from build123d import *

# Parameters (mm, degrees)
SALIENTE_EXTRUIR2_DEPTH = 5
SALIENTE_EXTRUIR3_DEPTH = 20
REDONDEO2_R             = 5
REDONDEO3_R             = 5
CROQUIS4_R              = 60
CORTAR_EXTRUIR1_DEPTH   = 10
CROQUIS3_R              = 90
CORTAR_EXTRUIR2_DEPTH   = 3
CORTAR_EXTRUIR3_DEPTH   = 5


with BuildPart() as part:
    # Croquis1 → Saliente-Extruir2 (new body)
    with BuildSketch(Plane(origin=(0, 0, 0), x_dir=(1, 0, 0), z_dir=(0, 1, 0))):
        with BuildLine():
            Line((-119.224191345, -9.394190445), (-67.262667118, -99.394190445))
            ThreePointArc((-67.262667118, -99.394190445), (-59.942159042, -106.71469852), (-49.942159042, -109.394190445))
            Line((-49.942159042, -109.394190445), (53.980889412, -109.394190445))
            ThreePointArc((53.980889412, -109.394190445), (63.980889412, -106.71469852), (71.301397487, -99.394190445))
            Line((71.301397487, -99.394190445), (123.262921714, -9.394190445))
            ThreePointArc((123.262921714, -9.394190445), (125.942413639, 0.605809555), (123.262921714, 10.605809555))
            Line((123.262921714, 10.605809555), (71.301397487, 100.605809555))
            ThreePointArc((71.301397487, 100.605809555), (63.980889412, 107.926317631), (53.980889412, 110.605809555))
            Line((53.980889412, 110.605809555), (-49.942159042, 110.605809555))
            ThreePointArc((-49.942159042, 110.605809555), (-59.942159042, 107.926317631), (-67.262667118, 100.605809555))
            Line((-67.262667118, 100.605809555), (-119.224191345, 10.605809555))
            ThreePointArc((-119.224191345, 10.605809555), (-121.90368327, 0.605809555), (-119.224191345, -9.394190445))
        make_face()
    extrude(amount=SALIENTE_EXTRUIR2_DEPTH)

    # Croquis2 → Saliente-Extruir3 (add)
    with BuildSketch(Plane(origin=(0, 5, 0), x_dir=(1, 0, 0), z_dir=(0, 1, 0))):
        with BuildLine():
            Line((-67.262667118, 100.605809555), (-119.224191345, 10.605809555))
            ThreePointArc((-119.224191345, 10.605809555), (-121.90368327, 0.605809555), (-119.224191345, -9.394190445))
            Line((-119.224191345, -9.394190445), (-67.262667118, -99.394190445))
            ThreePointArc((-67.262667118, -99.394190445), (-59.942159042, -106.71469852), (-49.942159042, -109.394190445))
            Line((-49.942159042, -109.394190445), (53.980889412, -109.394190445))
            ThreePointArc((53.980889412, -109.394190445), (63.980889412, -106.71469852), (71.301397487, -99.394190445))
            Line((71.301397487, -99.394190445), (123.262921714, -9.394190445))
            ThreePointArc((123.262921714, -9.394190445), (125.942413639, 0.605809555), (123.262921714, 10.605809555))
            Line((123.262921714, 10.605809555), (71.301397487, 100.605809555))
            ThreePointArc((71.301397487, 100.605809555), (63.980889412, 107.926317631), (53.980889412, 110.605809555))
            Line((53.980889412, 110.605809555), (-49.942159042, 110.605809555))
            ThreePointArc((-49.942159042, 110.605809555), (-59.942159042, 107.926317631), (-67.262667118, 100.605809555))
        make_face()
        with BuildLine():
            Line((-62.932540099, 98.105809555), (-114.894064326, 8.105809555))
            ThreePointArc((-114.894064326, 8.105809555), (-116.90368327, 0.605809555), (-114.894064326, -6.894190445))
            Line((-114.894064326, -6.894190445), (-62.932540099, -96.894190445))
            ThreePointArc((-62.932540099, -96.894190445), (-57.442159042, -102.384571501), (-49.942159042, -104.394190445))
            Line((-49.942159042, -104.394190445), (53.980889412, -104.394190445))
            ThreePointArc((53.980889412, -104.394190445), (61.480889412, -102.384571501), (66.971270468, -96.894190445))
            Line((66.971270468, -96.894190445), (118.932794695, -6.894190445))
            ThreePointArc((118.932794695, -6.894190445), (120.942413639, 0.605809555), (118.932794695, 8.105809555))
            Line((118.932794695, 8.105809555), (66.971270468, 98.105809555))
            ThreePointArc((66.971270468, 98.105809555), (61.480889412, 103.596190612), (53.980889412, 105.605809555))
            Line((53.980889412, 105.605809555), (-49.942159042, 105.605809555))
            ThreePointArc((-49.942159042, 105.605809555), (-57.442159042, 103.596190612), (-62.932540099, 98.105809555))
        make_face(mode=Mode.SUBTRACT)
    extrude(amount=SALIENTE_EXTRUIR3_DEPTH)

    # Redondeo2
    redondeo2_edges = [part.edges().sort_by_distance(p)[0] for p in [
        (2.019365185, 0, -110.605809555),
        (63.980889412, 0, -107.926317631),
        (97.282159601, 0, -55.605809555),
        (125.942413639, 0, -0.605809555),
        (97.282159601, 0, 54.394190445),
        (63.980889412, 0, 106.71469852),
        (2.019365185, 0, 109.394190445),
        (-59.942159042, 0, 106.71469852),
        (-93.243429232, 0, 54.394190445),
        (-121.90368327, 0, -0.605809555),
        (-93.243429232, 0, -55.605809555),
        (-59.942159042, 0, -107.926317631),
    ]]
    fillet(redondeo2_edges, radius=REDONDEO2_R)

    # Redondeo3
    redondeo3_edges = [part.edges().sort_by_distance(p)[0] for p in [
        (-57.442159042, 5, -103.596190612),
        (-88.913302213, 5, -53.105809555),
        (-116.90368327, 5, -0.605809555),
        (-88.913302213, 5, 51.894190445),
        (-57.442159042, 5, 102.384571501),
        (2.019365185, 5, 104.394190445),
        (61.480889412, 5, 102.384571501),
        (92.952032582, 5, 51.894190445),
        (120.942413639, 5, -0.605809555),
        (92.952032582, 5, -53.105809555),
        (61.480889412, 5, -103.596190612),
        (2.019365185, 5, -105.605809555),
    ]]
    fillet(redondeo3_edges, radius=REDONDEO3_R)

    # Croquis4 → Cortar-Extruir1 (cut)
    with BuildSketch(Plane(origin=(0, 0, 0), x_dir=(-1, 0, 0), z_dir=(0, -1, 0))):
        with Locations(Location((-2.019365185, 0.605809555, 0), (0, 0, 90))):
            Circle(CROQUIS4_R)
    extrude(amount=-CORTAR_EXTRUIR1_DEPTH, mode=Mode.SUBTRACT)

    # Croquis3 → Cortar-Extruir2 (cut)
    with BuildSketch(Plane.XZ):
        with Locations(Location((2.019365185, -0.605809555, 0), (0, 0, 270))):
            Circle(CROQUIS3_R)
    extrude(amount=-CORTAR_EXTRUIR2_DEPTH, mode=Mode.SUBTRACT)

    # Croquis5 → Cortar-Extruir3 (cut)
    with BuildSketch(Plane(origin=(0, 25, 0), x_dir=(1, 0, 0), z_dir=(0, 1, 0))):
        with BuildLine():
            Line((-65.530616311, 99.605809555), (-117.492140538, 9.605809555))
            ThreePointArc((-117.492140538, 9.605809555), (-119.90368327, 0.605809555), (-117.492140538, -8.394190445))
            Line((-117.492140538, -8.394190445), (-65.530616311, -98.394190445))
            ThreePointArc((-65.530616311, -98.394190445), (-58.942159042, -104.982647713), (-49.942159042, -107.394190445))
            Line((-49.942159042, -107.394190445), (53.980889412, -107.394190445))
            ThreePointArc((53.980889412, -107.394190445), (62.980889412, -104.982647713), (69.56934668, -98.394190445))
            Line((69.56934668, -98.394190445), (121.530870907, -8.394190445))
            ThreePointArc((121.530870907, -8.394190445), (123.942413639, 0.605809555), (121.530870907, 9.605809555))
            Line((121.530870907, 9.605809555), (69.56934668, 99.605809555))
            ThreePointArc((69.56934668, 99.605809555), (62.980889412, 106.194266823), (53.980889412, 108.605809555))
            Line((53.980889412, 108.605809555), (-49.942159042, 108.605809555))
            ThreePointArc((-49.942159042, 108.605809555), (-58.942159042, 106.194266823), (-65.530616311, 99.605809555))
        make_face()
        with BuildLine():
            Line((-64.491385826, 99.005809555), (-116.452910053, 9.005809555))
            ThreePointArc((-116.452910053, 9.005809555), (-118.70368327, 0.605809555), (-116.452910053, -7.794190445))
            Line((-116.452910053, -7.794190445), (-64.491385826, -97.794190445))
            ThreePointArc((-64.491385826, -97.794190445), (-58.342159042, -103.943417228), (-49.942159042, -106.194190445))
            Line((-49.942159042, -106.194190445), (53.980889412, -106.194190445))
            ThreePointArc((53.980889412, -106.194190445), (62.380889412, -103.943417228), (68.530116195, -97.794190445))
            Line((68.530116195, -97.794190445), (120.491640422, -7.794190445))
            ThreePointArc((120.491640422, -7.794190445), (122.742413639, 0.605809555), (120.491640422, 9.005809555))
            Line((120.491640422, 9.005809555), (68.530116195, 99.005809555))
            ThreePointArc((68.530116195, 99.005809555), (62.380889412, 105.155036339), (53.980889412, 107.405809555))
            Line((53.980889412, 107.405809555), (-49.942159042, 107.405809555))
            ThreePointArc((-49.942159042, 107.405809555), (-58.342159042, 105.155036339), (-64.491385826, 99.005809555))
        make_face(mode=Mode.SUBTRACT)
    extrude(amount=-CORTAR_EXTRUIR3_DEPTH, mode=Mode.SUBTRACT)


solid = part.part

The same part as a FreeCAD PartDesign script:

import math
import FreeCAD as App
import Part
import Sketcher
Q = App.Units.Quantity


def edges_at(feature, points):
    """Names of the edges that pass closest to the given points."""
    edges = feature.Shape.Edges
    near = lambda p: min(range(len(edges)), key=lambda i: edges[i].distToShape(Part.Vertex(*p))[0])
    return sorted({f"Edge{near(p) + 1}" for p in points})

doc = App.newDocument("Part")
body = doc.addObject("PartDesign::Body", "Body")

# Sketch on XZ plane
sketch1 = body.newObject("Sketcher::SketchObject", "Sketch")
sketch1.AttachmentSupport = (doc.getObject("XZ_Plane"), [""])
sketch1.MapMode = "FlatFace"
sketch1.addGeometry([
    Part.LineSegment(App.Vector(-119, 9, 0), App.Vector(-67, 99, 0)),  # 0
    Part.ArcOfCircle(Part.Circle(App.Vector(-50, 89, 0), App.Vector(0, 0, 1), 20), math.radians(90), math.radians(150)),  # 1
    Part.LineSegment(App.Vector(-50, 109, 0), App.Vector(54, 109, 0)),  # 2
    Part.ArcOfCircle(Part.Circle(App.Vector(54, 89, 0), App.Vector(0, 0, 1), 20), math.radians(30), math.radians(90)),  # 3
    Part.LineSegment(App.Vector(71, 99, 0), App.Vector(123, 9, 0)),  # 4
    Part.ArcOfCircle(Part.Circle(App.Vector(106, -1, 0), App.Vector(0, 0, 1), 20), math.radians(-30), math.radians(30)),  # 5
    Part.LineSegment(App.Vector(123, -11, 0), App.Vector(71, -101, 0)),  # 6
    Part.ArcOfCircle(Part.Circle(App.Vector(54, -91, 0), App.Vector(0, 0, 1), 20), math.radians(-90), math.radians(-30)),  # 7
    Part.LineSegment(App.Vector(54, -111, 0), App.Vector(-50, -111, 0)),  # 8
    Part.ArcOfCircle(Part.Circle(App.Vector(-50, -91, 0), App.Vector(0, 0, 1), 20), math.radians(-150), math.radians(-90)),  # 9
    Part.LineSegment(App.Vector(-67, -101, 0), App.Vector(-119, -11, 0)),  # 10
    Part.ArcOfCircle(Part.Circle(App.Vector(-102, -1, 0), App.Vector(0, 0, 1), 20), math.radians(150), math.radians(210)),  # 11
], False)
sketch1.addConstraint([
    Sketcher.Constraint("Tangent", 0, 2, 1, 2),
    Sketcher.Constraint("Tangent", 1, 1, 2, 1),
    Sketcher.Constraint("Tangent", 2, 2, 3, 2),
    Sketcher.Constraint("Tangent", 3, 1, 4, 1),
    Sketcher.Constraint("Tangent", 4, 2, 5, 2),
    Sketcher.Constraint("Tangent", 5, 1, 6, 1),
    Sketcher.Constraint("Tangent", 6, 2, 7, 2),
    Sketcher.Constraint("Tangent", 7, 1, 8, 1),
    Sketcher.Constraint("Tangent", 8, 2, 9, 2),
    Sketcher.Constraint("Tangent", 9, 1, 10, 1),
    Sketcher.Constraint("Tangent", 10, 2, 11, 2),
    Sketcher.Constraint("Tangent", 11, 1, 0, 1),
    Sketcher.Constraint("Horizontal", 2),
    Sketcher.Constraint("Horizontal", 8),
    Sketcher.Constraint("Equal", 1, 3),
    Sketcher.Constraint("Equal", 3, 5),
    Sketcher.Constraint("Equal", 5, 7),
    Sketcher.Constraint("Equal", 7, 9),
    Sketcher.Constraint("Equal", 9, 11),
    Sketcher.Constraint("Parallel", 0, 6),
    Sketcher.Constraint("Parallel", 4, 10),
    Sketcher.Constraint("Horizontal", 5, 3, 11, 3),
    Sketcher.Constraint("Horizontal", 0, 2, 3, 1),
    Sketcher.Constraint("Vertical", 3, 3, 7, 3),
    Sketcher.Constraint("Radius", 1, Q("20 mm")),
    Sketcher.Constraint("Angle", 0, Q("60 deg")),
    Sketcher.Constraint("DistanceY", 5, 3, 3, 3, Q("90 mm")),
    Sketcher.Constraint("DistanceX", 2, 1, 2, 2, Q("103.923048 mm")),
    Sketcher.Constraint("DistanceX", 1, 3, -1, 1, Q("49.942159 mm")),
    Sketcher.Constraint("DistanceY", -1, 1, 1, 3, Q("89.39419 mm")),
])
pad1 = body.newObject("PartDesign::Pad", "Pad")
pad1.Profile = sketch1
pad1.Length = 5
pad1.Reversed = True

# Sketch on XZ plane
sketch2 = body.newObject("Sketcher::SketchObject", "Sketch001")
sketch2.AttachmentSupport = (doc.getObject("XZ_Plane"), [""])
sketch2.MapMode = "FlatFace"
sketch2.AttachmentOffset = App.Placement(App.Vector(0, 0, -5), App.Rotation())
sketch2.addGeometry([
    Part.LineSegment(App.Vector(-67, -101, 0), App.Vector(-119, -11, 0)),  # 0
    Part.ArcOfCircle(Part.Circle(App.Vector(-102, -1, 0), App.Vector(0, 0, 1), 20), math.radians(150), math.radians(210)),  # 1
    Part.LineSegment(App.Vector(-119, 9, 0), App.Vector(-67, 99, 0)),  # 2
    Part.ArcOfCircle(Part.Circle(App.Vector(-50, 89, 0), App.Vector(0, 0, 1), 20), math.radians(90), math.radians(150)),  # 3
    Part.LineSegment(App.Vector(-50, 109, 0), App.Vector(54, 109, 0)),  # 4
    Part.ArcOfCircle(Part.Circle(App.Vector(54, 89, 0), App.Vector(0, 0, 1), 20), math.radians(30), math.radians(90)),  # 5
    Part.LineSegment(App.Vector(71, 99, 0), App.Vector(123, 9, 0)),  # 6
    Part.ArcOfCircle(Part.Circle(App.Vector(106, -1, 0), App.Vector(0, 0, 1), 20), math.radians(-30), math.radians(30)),  # 7
    Part.LineSegment(App.Vector(123, -11, 0), App.Vector(71, -101, 0)),  # 8
    Part.ArcOfCircle(Part.Circle(App.Vector(54, -91, 0), App.Vector(0, 0, 1), 20), math.radians(-90), math.radians(-30)),  # 9
    Part.LineSegment(App.Vector(54, -111, 0), App.Vector(-50, -111, 0)),  # 10
    Part.ArcOfCircle(Part.Circle(App.Vector(-50, -91, 0), App.Vector(0, 0, 1), 20), math.radians(-150), math.radians(-90)),  # 11
    Part.LineSegment(App.Vector(-115, -8, 0), App.Vector(-63, -98, 0)),  # 12
    Part.ArcOfCircle(Part.Circle(App.Vector(-50, -91, 0), App.Vector(0, 0, 1), 15), math.radians(-150), math.radians(-90)),  # 13
    Part.LineSegment(App.Vector(-50, -106, 0), App.Vector(54, -106, 0)),  # 14
    Part.ArcOfCircle(Part.Circle(App.Vector(54, -91, 0), App.Vector(0, 0, 1), 15), math.radians(-90), math.radians(-30)),  # 15
    Part.LineSegment(App.Vector(67, -98, 0), App.Vector(119, -8, 0)),  # 16
    Part.ArcOfCircle(Part.Circle(App.Vector(106, -1, 0), App.Vector(0, 0, 1), 15), math.radians(-30), math.radians(30)),  # 17
    Part.LineSegment(App.Vector(119, 7, 0), App.Vector(67, 97, 0)),  # 18
    Part.ArcOfCircle(Part.Circle(App.Vector(54, 89, 0), App.Vector(0, 0, 1), 15), math.radians(30), math.radians(90)),  # 19
    Part.LineSegment(App.Vector(54, 104, 0), App.Vector(-50, 104, 0)),  # 20
    Part.ArcOfCircle(Part.Circle(App.Vector(-50, 89, 0), App.Vector(0, 0, 1), 15), math.radians(90), math.radians(150)),  # 21
    Part.LineSegment(App.Vector(-63, 97, 0), App.Vector(-115, 7, 0)),  # 22
    Part.ArcOfCircle(Part.Circle(App.Vector(-102, -1, 0), App.Vector(0, 0, 1), 15), math.radians(150), math.radians(210)),  # 23
], False)
sketch2.addConstraint([
    Sketcher.Constraint("Tangent", 0, 2, 1, 2),
    Sketcher.Constraint("Tangent", 1, 1, 2, 1),
    Sketcher.Constraint("Tangent", 2, 2, 3, 2),
    Sketcher.Constraint("Tangent", 3, 1, 4, 1),
    Sketcher.Constraint("Tangent", 4, 2, 5, 2),
    Sketcher.Constraint("Tangent", 5, 1, 6, 1),
    Sketcher.Constraint("Tangent", 6, 2, 7, 2),
    Sketcher.Constraint("Tangent", 7, 1, 8, 1),
    Sketcher.Constraint("Tangent", 8, 2, 9, 2),
    Sketcher.Constraint("Tangent", 9, 1, 10, 1),
    Sketcher.Constraint("Tangent", 10, 2, 11, 2),
    Sketcher.Constraint("Tangent", 11, 1, 0, 1),
    Sketcher.Constraint("Tangent", 12, 2, 13, 1),
    Sketcher.Constraint("Tangent", 13, 2, 14, 1),
    Sketcher.Constraint("Tangent", 14, 2, 15, 1),
    Sketcher.Constraint("Tangent", 15, 2, 16, 1),
    Sketcher.Constraint("Tangent", 16, 2, 17, 1),
    Sketcher.Constraint("Tangent", 17, 2, 18, 1),
    Sketcher.Constraint("Tangent", 18, 2, 19, 1),
    Sketcher.Constraint("Tangent", 19, 2, 20, 1),
    Sketcher.Constraint("Tangent", 20, 2, 21, 1),
    Sketcher.Constraint("Tangent", 21, 2, 22, 1),
    Sketcher.Constraint("Tangent", 22, 2, 23, 1),
    Sketcher.Constraint("Tangent", 23, 2, 12, 1),
    Sketcher.Constraint("Horizontal", 4),
    Sketcher.Constraint("Horizontal", 10),
    Sketcher.Constraint("Horizontal", 14),
    Sketcher.Constraint("Horizontal", 20),
    Sketcher.Constraint("Coincident", 13, 3, 11, 3),
    Sketcher.Constraint("Coincident", 15, 3, 9, 3),
    Sketcher.Constraint("Coincident", 17, 3, 7, 3),
    Sketcher.Constraint("Coincident", 19, 3, 5, 3),
    Sketcher.Constraint("Coincident", 21, 3, 3, 3),
    Sketcher.Constraint("Coincident", 23, 3, 1, 3),
    Sketcher.Constraint("Equal", 1, 3),
    Sketcher.Constraint("Equal", 3, 5),
    Sketcher.Constraint("Equal", 5, 7),
    Sketcher.Constraint("Equal", 7, 9),
    Sketcher.Constraint("Equal", 9, 11),
    Sketcher.Constraint("Equal", 15, 17),
    Sketcher.Constraint("Equal", 17, 19),
    Sketcher.Constraint("Equal", 21, 23),
    Sketcher.Constraint("Parallel", 0, 6),
    Sketcher.Constraint("Parallel", 2, 8),
    Sketcher.Constraint("Horizontal", 1, 3, 7, 3),
    Sketcher.Constraint("Horizontal", 2, 2, 5, 1),
    Sketcher.Constraint("Vertical", 5, 3, 9, 3),
    Sketcher.Constraint("Radius", 1, Q("20 mm")),
    Sketcher.Constraint("Radius", 13, Q("15 mm")),
    Sketcher.Constraint("Angle", 0, Q("120 deg")),
    Sketcher.Constraint("DistanceY", 1, 3, 3, 3, Q("90 mm")),
    Sketcher.Constraint("DistanceX", 4, 1, 4, 2, Q("103.923048 mm")),
    Sketcher.Constraint("DistanceY", 1, 3, -1, 1, Q("0.60581 mm")),
    Sketcher.Constraint("DistanceX", 3, 3, -1, 1, Q("49.942159 mm")),
])
pad2 = body.newObject("PartDesign::Pad", "Pad001")
pad2.Profile = sketch2
pad2.Length = 20
pad2.Reversed = True
doc.recompute()

fillet = body.newObject("PartDesign::Fillet", "Fillet")
fillet.Base = (pad2, edges_at(pad2, [
    (2.019, 0, -110.606),
    (63.981, 0, -107.926),
    (97.282, 0, -55.606),
    (125.942, 0, -0.606),
    (97.282, 0, 54.394),
    (63.981, 0, 106.715),
    (2.019, 0, 109.394),
    (-59.942, 0, 106.715),
    (-93.243, 0, 54.394),
    (-121.904, 0, -0.606),
    (-93.243, 0, -55.606),
    (-59.942, 0, -107.926),
]))
fillet.Radius = 5
doc.recompute()

fillet2 = body.newObject("PartDesign::Fillet", "Fillet001")
fillet2.Base = (fillet, edges_at(fillet, [
    (-57.442, 5, -103.596),
    (-88.913, 5, -53.106),
    (-116.904, 5, -0.606),
    (-88.913, 5, 51.894),
    (-57.442, 5, 102.385),
    (2.019, 5, 104.394),
    (61.481, 5, 102.385),
    (92.952, 5, 51.894),
    (120.942, 5, -0.606),
    (92.952, 5, -53.106),
    (61.481, 5, -103.596),
    (2.019, 5, -105.606),
]))
fillet2.Radius = 5

# Sketch on XZ plane
sketch3 = body.newObject("Sketcher::SketchObject", "Sketch002")
sketch3.AttachmentSupport = (doc.getObject("XZ_Plane"), [""])
sketch3.MapMode = "FlatFace"
sketch3.addGeometry(Part.Circle(App.Vector(2, -1, 0), App.Vector(0, 0, 1), 60), False)
sketch3.addConstraint([
    Sketcher.Constraint("Diameter", 0, Q("120 mm")),
    Sketcher.Constraint("DistanceY", 0, 3, -1, 1, Q("0.60581 mm")),
    Sketcher.Constraint("DistanceX", -1, 1, 0, 3, Q("2.019365 mm")),
])
pocket1 = body.newObject("PartDesign::Pocket", "Pocket")
pocket1.Profile = sketch3
pocket1.Length = 10

# Sketch on XZ plane
sketch4 = body.newObject("Sketcher::SketchObject", "Sketch003")
sketch4.AttachmentSupport = (doc.getObject("XZ_Plane"), [""])
sketch4.MapMode = "FlatFace"
sketch4.addGeometry(Part.Circle(App.Vector(2, -1, 0), App.Vector(0, 0, 1), 90), False)
sketch4.addConstraint([
    Sketcher.Constraint("Diameter", 0, Q("180 mm")),
    Sketcher.Constraint("DistanceY", 0, 3, -1, 1, Q("0.60581 mm")),
    Sketcher.Constraint("DistanceX", -1, 1, 0, 3, Q("2.019365 mm")),
])
pocket2 = body.newObject("PartDesign::Pocket", "Pocket001")
pocket2.Profile = sketch4
pocket2.Length = 3

# Sketch on XZ plane
sketch5 = body.newObject("Sketcher::SketchObject", "Sketch004")
sketch5.AttachmentSupport = (doc.getObject("XZ_Plane"), [""])
sketch5.MapMode = "FlatFace"
sketch5.AttachmentOffset = App.Placement(App.Vector(0, 0, -25), App.Rotation())
sketch5.addGeometry([
    Part.LineSegment(App.Vector(-66, -100, 0), App.Vector(-117, -10, 0)),  # 0
    Part.ArcOfCircle(Part.Circle(App.Vector(-102, -1, 0), App.Vector(0, 0, 1), 18), math.radians(150), math.radians(210)),  # 1
    Part.LineSegment(App.Vector(-117, 8, 0), App.Vector(-66, 98, 0)),  # 2
    Part.ArcOfCircle(Part.Circle(App.Vector(-50, 89, 0), App.Vector(0, 0, 1), 18), math.radians(90), math.radians(150)),  # 3
    Part.LineSegment(App.Vector(-50, 107, 0), App.Vector(54, 107, 0)),  # 4
    Part.ArcOfCircle(Part.Circle(App.Vector(54, 89, 0), App.Vector(0, 0, 1), 18), math.radians(30), math.radians(90)),  # 5
    Part.LineSegment(App.Vector(70, 98, 0), App.Vector(122, 8, 0)),  # 6
    Part.ArcOfCircle(Part.Circle(App.Vector(106, -1, 0), App.Vector(0, 0, 1), 18), math.radians(-30), math.radians(30)),  # 7
    Part.LineSegment(App.Vector(122, -10, 0), App.Vector(70, -100, 0)),  # 8
    Part.ArcOfCircle(Part.Circle(App.Vector(54, -91, 0), App.Vector(0, 0, 1), 18), math.radians(-90), math.radians(-30)),  # 9
    Part.LineSegment(App.Vector(54, -109, 0), App.Vector(-50, -109, 0)),  # 10
    Part.ArcOfCircle(Part.Circle(App.Vector(-50, -91, 0), App.Vector(0, 0, 1), 18), math.radians(-150), math.radians(-90)),  # 11
    Part.LineSegment(App.Vector(-116, -9, 0), App.Vector(-64, -99, 0)),  # 12
    Part.ArcOfCircle(Part.Circle(App.Vector(-50, -91, 0), App.Vector(0, 0, 1), 17), math.radians(-150), math.radians(-90)),  # 13
    Part.LineSegment(App.Vector(-50, -107, 0), App.Vector(54, -107, 0)),  # 14
    Part.ArcOfCircle(Part.Circle(App.Vector(54, -91, 0), App.Vector(0, 0, 1), 17), math.radians(-90), math.radians(-30)),  # 15
    Part.LineSegment(App.Vector(69, -99, 0), App.Vector(120, -9, 0)),  # 16
    Part.ArcOfCircle(Part.Circle(App.Vector(106, -1, 0), App.Vector(0, 0, 1), 17), math.radians(-30), math.radians(30)),  # 17
    Part.LineSegment(App.Vector(120, 8, 0), App.Vector(69, 98, 0)),  # 18
    Part.ArcOfCircle(Part.Circle(App.Vector(54, 89, 0), App.Vector(0, 0, 1), 17), math.radians(30), math.radians(90)),  # 19
    Part.LineSegment(App.Vector(54, 106, 0), App.Vector(-50, 106, 0)),  # 20
    Part.ArcOfCircle(Part.Circle(App.Vector(-50, 89, 0), App.Vector(0, 0, 1), 17), math.radians(90), math.radians(150)),  # 21
    Part.LineSegment(App.Vector(-64, 98, 0), App.Vector(-116, 8, 0)),  # 22
    Part.ArcOfCircle(Part.Circle(App.Vector(-102, -1, 0), App.Vector(0, 0, 1), 17), math.radians(150), math.radians(210)),  # 23
], False)
sketch5.addConstraint([
    Sketcher.Constraint("Tangent", 0, 2, 1, 2),
    Sketcher.Constraint("Tangent", 1, 1, 2, 1),
    Sketcher.Constraint("Tangent", 2, 2, 3, 2),
    Sketcher.Constraint("Tangent", 3, 1, 4, 1),
    Sketcher.Constraint("Tangent", 4, 2, 5, 2),
    Sketcher.Constraint("Tangent", 5, 1, 6, 1),
    Sketcher.Constraint("Tangent", 6, 2, 7, 2),
    Sketcher.Constraint("Tangent", 7, 1, 8, 1),
    Sketcher.Constraint("Tangent", 8, 2, 9, 2),
    Sketcher.Constraint("Tangent", 9, 1, 10, 1),
    Sketcher.Constraint("Tangent", 10, 2, 11, 2),
    Sketcher.Constraint("Tangent", 11, 1, 0, 1),
    Sketcher.Constraint("Tangent", 12, 2, 13, 1),
    Sketcher.Constraint("Tangent", 13, 2, 14, 1),
    Sketcher.Constraint("Tangent", 14, 2, 15, 1),
    Sketcher.Constraint("Tangent", 15, 2, 16, 1),
    Sketcher.Constraint("Tangent", 16, 2, 17, 1),
    Sketcher.Constraint("Tangent", 17, 2, 18, 1),
    Sketcher.Constraint("Tangent", 18, 2, 19, 1),
    Sketcher.Constraint("Tangent", 19, 2, 20, 1),
    Sketcher.Constraint("Tangent", 20, 2, 21, 1),
    Sketcher.Constraint("Tangent", 21, 2, 22, 1),
    Sketcher.Constraint("Tangent", 22, 2, 23, 1),
    Sketcher.Constraint("Tangent", 23, 2, 12, 1),
    Sketcher.Constraint("Horizontal", 4),
    Sketcher.Constraint("Horizontal", 10),
    Sketcher.Constraint("Horizontal", 14),
    Sketcher.Constraint("Horizontal", 20),
    Sketcher.Constraint("Coincident", 13, 3, 11, 3),
    Sketcher.Constraint("Coincident", 15, 3, 9, 3),
    Sketcher.Constraint("Coincident", 17, 3, 7, 3),
    Sketcher.Constraint("Coincident", 19, 3, 5, 3),
    Sketcher.Constraint("Coincident", 21, 3, 3, 3),
    Sketcher.Constraint("Coincident", 23, 3, 1, 3),
    Sketcher.Constraint("Equal", 1, 3),
    Sketcher.Constraint("Equal", 3, 5),
    Sketcher.Constraint("Equal", 5, 7),
    Sketcher.Constraint("Equal", 7, 9),
    Sketcher.Constraint("Equal", 9, 11),
    Sketcher.Constraint("Equal", 15, 17),
    Sketcher.Constraint("Equal", 17, 19),
    Sketcher.Constraint("Equal", 21, 23),
    Sketcher.Constraint("Parallel", 0, 6),
    Sketcher.Constraint("Parallel", 2, 8),
    Sketcher.Constraint("Horizontal", 1, 3, 7, 3),
    Sketcher.Constraint("Horizontal", 2, 2, 5, 1),
    Sketcher.Constraint("Vertical", 5, 3, 9, 3),
    Sketcher.Constraint("Radius", 1, Q("18 mm")),
    Sketcher.Constraint("Radius", 13, Q("16.8 mm")),
    Sketcher.Constraint("Angle", 0, Q("120 deg")),
    Sketcher.Constraint("DistanceY", 1, 3, 3, 3, Q("90 mm")),
    Sketcher.Constraint("DistanceX", 4, 1, 4, 2, Q("103.923048 mm")),
    Sketcher.Constraint("DistanceY", 1, 3, -1, 1, Q("0.60581 mm")),
    Sketcher.Constraint("DistanceX", 3, 3, -1, 1, Q("49.942159 mm")),
])
pocket3 = body.newObject("PartDesign::Pocket", "Pocket002")
pocket3.Profile = sketch5
pocket3.Length = 5
pocket3.Reversed = True

doc.recompute()
